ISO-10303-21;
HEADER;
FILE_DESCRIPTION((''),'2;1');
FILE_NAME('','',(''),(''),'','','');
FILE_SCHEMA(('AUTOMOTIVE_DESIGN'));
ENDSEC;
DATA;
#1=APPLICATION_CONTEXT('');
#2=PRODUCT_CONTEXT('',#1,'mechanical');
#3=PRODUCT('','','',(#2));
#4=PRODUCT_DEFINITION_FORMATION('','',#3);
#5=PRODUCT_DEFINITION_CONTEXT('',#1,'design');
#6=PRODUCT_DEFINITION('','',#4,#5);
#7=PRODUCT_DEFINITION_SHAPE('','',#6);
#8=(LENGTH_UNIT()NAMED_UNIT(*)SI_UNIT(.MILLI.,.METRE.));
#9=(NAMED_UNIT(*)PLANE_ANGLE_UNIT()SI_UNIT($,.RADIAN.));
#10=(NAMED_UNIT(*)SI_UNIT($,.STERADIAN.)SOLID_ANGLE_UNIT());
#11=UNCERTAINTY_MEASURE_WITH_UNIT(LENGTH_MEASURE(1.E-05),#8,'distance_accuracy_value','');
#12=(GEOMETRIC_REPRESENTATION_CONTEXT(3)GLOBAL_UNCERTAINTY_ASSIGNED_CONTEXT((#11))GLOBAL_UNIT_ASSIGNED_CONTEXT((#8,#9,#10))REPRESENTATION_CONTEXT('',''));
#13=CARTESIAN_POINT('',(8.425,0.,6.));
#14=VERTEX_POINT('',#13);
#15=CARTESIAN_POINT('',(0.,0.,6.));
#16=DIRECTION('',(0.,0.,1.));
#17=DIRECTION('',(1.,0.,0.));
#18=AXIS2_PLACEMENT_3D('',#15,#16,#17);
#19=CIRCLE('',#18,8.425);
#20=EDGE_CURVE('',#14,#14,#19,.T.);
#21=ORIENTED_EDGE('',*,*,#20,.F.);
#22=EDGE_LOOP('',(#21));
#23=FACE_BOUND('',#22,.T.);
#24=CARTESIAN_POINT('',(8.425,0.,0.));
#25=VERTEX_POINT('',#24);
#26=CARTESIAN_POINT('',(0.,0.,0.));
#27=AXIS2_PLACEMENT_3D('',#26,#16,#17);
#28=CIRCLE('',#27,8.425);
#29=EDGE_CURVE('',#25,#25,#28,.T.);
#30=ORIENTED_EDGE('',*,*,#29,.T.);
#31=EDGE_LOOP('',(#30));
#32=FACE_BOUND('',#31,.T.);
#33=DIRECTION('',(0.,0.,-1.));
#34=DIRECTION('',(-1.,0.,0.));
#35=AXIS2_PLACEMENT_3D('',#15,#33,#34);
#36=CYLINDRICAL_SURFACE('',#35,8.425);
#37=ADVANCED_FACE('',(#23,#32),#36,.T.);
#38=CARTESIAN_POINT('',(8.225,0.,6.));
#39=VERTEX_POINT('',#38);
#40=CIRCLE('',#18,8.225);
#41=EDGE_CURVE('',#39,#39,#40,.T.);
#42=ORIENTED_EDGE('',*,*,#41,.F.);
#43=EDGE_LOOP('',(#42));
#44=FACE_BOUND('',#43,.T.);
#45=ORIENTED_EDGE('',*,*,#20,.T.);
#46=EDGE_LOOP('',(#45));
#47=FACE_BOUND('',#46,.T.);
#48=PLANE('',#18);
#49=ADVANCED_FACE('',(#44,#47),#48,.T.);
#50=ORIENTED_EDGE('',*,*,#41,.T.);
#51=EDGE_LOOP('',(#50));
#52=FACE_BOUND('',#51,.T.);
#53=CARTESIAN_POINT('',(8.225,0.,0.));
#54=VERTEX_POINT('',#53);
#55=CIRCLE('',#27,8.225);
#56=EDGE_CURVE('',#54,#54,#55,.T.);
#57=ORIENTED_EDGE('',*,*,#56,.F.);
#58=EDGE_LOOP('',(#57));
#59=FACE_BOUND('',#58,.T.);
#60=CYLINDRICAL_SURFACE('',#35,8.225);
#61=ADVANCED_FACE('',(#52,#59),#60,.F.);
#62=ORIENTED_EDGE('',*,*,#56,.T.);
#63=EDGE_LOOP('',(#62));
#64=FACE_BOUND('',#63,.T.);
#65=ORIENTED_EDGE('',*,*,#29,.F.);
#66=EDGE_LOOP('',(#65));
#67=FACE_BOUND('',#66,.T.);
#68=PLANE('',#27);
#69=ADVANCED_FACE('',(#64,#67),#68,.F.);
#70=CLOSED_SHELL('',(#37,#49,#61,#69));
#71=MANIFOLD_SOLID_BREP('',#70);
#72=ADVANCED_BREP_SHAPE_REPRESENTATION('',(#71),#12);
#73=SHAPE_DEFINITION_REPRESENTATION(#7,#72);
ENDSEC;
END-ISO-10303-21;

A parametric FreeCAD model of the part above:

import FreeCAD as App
import Part
import Sketcher
from FreeCAD import Vector

doc = App.newDocument("Part")
body = doc.addObject("PartDesign::Body", "Body")

# Sketch on XY plane
sketch1 = doc.addObject("Sketcher::SketchObject", "Sketch")
body.addObject(sketch1)
sketch1.AttachmentSupport = (doc.XY_Plane, [""])
sketch1.MapMode = "FlatFace"
sketch1.addGeometry([
    Part.Circle(Vector(0, 0, 0), Vector(0, 0, 1), 8),
    Part.Circle(Vector(0, 0, 0), Vector(0, 0, 1), 8),
], False)
sketch1.addConstraint([
    Sketcher.Constraint("Coincident", 0, 3, -1, 1),
    Sketcher.Constraint("Coincident", 1, 3, -1, 1),
    Sketcher.Constraint("Diameter", 0, 16.85),
    Sketcher.Constraint("Diameter", 1, 16.45),
])
pad1 = doc.addObject("PartDesign::Pad", "Pad")
body.addObject(pad1)
pad1.Profile = sketch1
pad1.Length = 6

doc.recompute()
